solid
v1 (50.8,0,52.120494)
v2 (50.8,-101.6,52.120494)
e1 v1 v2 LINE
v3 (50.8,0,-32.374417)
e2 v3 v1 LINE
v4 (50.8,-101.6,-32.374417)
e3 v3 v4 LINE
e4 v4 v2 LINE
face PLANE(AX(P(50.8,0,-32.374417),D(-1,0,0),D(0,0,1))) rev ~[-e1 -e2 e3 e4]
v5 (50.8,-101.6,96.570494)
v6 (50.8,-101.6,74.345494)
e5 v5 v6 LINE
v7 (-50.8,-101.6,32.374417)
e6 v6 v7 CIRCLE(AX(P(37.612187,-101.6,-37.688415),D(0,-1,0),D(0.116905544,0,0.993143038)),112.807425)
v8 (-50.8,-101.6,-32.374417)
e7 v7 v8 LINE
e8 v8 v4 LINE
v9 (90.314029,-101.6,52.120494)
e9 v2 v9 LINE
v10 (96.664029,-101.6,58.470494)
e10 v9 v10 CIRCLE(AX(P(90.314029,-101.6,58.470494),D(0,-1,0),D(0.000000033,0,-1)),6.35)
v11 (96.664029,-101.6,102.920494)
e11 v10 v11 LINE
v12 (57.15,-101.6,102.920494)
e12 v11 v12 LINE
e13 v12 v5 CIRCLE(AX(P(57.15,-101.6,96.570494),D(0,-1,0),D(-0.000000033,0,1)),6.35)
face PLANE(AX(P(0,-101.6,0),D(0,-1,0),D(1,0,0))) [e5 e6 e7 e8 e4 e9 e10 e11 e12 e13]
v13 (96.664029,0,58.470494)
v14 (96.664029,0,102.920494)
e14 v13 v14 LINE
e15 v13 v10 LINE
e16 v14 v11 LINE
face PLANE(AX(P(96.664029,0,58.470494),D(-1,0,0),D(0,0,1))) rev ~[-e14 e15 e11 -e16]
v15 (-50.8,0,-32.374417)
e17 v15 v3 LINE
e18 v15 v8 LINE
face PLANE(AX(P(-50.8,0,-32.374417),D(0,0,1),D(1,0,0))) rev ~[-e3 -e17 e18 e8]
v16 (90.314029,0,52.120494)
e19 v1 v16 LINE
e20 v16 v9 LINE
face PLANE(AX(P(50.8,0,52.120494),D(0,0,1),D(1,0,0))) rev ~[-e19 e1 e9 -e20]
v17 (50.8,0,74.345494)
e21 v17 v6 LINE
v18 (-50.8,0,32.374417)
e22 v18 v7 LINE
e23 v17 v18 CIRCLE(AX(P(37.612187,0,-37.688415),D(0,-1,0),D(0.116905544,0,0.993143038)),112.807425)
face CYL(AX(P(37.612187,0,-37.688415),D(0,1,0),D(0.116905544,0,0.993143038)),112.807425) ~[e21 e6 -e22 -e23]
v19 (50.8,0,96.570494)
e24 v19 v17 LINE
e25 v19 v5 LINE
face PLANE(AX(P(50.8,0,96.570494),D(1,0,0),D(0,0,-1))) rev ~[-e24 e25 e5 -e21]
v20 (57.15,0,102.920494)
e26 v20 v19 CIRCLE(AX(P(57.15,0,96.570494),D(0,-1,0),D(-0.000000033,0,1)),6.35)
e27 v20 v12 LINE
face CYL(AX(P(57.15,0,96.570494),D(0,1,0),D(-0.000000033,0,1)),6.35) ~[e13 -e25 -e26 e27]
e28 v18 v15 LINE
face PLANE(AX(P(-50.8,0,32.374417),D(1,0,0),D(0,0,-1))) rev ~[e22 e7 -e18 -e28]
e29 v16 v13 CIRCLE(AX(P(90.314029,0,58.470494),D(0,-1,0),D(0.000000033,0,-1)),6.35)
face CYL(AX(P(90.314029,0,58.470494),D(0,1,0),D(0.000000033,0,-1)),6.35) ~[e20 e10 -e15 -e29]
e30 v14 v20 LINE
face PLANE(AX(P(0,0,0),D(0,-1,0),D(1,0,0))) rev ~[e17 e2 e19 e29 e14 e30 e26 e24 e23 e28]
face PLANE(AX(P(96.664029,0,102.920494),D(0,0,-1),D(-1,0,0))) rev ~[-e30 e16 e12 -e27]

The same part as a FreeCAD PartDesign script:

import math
import FreeCAD as App
import Part
import Sketcher
Q = App.Units.Quantity

doc = App.newDocument("Part")
params = doc.addObject("Spreadsheet::Sheet", "Params")
for row, (alias, value) in enumerate([
    ("sketch1_width", "4 in"),
    ("sketch1_radius", "0.25 in"),
    ("sketch1_height", "0.875 in"),
    ("pad1_length", "4 in"),
], start=1):
    params.set(f"A{row}", alias)
    params.set(f"B{row}", "=" + value)
    params.setAlias(f"B{row}", alias)

body = doc.addObject("PartDesign::Body", "Body")

sketch1 = doc.addObject("Sketcher::SketchObject", "Sketch")
body.addObject(sketch1)
sketch1.AttachmentSupport = (doc.XZ_Plane, [""])
sketch1.MapMode = "FlatFace"
sketch1.addGeometry([
    Part.LineSegment(App.Vector(-51, -32, 0), App.Vector(51, -32, 0)),
    Part.LineSegment(App.Vector(51, -32, 0), App.Vector(51, 52, 0)),
    Part.LineSegment(App.Vector(51, 52, 0), App.Vector(90, 52, 0)),
    Part.ArcOfCircle(Part.Circle(App.Vector(90, 58, 0), App.Vector(0, 0, 1), 6), math.radians(-90), math.radians(0)),
    Part.LineSegment(App.Vector(97, 58, 0), App.Vector(97, 103, 0)),
    Part.LineSegment(App.Vector(97, 103, 0), App.Vector(57, 103, 0)),
    Part.ArcOfCircle(Part.Circle(App.Vector(57, 97, 0), App.Vector(0, 0, 1), 6), math.radians(90), math.radians(180)),
    Part.LineSegment(App.Vector(51, 97, 0), App.Vector(51, 74, 0)),
    Part.ArcOfCircle(Part.Circle(App.Vector(38, -38, 0), App.Vector(0, 0, 1), 113), math.radians(83), math.radians(142)),
    Part.LineSegment(App.Vector(-51, 32, 0), App.Vector(-51, -32, 0)),
], False)
sketch1.addConstraint([
    Sketcher.Constraint("Coincident", 0, 2, 1, 1),
    Sketcher.Constraint("Coincident", 1, 2, 2, 1),
    Sketcher.Constraint("Tangent", 2, 2, 3, 1),
    Sketcher.Constraint("Tangent", 3, 2, 4, 1),
    Sketcher.Constraint("Coincident", 4, 2, 5, 1),
    Sketcher.Constraint("Tangent", 5, 2, 6, 1),
    Sketcher.Constraint("Tangent", 6, 2, 7, 1),
    Sketcher.Constraint("Coincident", 7, 2, 8, 1),
    Sketcher.Constraint("Coincident", 8, 2, 9, 1),
    Sketcher.Constraint("Coincident", 9, 2, 0, 1),
    Sketcher.Constraint("Horizontal", 0),
    Sketcher.Constraint("Vertical", 1),
    Sketcher.Constraint("Horizontal", 2),
    Sketcher.Constraint("Vertical", 4),
    Sketcher.Constraint("Horizontal", 5),
    Sketcher.Constraint("Vertical", 7),
    Sketcher.Constraint("Vertical", 9),
    Sketcher.Constraint("Equal", 3, 6),
    Sketcher.Constraint("Symmetric", 0, 2, 8, 2, -1, 1),
    Sketcher.Constraint("Vertical", 1, 2, 6, 2),
    Sketcher.Constraint("DistanceX", 0, 1, 0, 2, Q("4 in")),
    Sketcher.Constraint("Radius", 3, Q("0.25 in")),
    Sketcher.Constraint("DistanceY", 2, 2, 4, 2, Q("2 in")),
    Sketcher.Constraint("DistanceY", 7, 2, 7, 1, Q("0.875 in")),
    Sketcher.Constraint("Radius", 8, Q("112.807425 mm")),
    Sketcher.Constraint("DistanceX", 2, 1, 2, 2, Q("39.514029 mm")),
    Sketcher.Constraint("DistanceY", 1, 1, 1, 2, Q("84.494911 mm")),
    Sketcher.Constraint("DistanceY", 9, 2, 9, 1, Q("64.748834 mm")),
])
sketch1.setExpression("Constraints[20]", "Params.sketch1_width")
sketch1.setExpression("Constraints[21]", "Params.sketch1_radius")
sketch1.setExpression("Constraints[23]", "Params.sketch1_height")
pad1 = doc.addObject("PartDesign::Pad", "Pad")
body.addObject(pad1)
pad1.Profile = sketch1
pad1.setExpression("Length", "Params.pad1_length")

doc.recompute()
